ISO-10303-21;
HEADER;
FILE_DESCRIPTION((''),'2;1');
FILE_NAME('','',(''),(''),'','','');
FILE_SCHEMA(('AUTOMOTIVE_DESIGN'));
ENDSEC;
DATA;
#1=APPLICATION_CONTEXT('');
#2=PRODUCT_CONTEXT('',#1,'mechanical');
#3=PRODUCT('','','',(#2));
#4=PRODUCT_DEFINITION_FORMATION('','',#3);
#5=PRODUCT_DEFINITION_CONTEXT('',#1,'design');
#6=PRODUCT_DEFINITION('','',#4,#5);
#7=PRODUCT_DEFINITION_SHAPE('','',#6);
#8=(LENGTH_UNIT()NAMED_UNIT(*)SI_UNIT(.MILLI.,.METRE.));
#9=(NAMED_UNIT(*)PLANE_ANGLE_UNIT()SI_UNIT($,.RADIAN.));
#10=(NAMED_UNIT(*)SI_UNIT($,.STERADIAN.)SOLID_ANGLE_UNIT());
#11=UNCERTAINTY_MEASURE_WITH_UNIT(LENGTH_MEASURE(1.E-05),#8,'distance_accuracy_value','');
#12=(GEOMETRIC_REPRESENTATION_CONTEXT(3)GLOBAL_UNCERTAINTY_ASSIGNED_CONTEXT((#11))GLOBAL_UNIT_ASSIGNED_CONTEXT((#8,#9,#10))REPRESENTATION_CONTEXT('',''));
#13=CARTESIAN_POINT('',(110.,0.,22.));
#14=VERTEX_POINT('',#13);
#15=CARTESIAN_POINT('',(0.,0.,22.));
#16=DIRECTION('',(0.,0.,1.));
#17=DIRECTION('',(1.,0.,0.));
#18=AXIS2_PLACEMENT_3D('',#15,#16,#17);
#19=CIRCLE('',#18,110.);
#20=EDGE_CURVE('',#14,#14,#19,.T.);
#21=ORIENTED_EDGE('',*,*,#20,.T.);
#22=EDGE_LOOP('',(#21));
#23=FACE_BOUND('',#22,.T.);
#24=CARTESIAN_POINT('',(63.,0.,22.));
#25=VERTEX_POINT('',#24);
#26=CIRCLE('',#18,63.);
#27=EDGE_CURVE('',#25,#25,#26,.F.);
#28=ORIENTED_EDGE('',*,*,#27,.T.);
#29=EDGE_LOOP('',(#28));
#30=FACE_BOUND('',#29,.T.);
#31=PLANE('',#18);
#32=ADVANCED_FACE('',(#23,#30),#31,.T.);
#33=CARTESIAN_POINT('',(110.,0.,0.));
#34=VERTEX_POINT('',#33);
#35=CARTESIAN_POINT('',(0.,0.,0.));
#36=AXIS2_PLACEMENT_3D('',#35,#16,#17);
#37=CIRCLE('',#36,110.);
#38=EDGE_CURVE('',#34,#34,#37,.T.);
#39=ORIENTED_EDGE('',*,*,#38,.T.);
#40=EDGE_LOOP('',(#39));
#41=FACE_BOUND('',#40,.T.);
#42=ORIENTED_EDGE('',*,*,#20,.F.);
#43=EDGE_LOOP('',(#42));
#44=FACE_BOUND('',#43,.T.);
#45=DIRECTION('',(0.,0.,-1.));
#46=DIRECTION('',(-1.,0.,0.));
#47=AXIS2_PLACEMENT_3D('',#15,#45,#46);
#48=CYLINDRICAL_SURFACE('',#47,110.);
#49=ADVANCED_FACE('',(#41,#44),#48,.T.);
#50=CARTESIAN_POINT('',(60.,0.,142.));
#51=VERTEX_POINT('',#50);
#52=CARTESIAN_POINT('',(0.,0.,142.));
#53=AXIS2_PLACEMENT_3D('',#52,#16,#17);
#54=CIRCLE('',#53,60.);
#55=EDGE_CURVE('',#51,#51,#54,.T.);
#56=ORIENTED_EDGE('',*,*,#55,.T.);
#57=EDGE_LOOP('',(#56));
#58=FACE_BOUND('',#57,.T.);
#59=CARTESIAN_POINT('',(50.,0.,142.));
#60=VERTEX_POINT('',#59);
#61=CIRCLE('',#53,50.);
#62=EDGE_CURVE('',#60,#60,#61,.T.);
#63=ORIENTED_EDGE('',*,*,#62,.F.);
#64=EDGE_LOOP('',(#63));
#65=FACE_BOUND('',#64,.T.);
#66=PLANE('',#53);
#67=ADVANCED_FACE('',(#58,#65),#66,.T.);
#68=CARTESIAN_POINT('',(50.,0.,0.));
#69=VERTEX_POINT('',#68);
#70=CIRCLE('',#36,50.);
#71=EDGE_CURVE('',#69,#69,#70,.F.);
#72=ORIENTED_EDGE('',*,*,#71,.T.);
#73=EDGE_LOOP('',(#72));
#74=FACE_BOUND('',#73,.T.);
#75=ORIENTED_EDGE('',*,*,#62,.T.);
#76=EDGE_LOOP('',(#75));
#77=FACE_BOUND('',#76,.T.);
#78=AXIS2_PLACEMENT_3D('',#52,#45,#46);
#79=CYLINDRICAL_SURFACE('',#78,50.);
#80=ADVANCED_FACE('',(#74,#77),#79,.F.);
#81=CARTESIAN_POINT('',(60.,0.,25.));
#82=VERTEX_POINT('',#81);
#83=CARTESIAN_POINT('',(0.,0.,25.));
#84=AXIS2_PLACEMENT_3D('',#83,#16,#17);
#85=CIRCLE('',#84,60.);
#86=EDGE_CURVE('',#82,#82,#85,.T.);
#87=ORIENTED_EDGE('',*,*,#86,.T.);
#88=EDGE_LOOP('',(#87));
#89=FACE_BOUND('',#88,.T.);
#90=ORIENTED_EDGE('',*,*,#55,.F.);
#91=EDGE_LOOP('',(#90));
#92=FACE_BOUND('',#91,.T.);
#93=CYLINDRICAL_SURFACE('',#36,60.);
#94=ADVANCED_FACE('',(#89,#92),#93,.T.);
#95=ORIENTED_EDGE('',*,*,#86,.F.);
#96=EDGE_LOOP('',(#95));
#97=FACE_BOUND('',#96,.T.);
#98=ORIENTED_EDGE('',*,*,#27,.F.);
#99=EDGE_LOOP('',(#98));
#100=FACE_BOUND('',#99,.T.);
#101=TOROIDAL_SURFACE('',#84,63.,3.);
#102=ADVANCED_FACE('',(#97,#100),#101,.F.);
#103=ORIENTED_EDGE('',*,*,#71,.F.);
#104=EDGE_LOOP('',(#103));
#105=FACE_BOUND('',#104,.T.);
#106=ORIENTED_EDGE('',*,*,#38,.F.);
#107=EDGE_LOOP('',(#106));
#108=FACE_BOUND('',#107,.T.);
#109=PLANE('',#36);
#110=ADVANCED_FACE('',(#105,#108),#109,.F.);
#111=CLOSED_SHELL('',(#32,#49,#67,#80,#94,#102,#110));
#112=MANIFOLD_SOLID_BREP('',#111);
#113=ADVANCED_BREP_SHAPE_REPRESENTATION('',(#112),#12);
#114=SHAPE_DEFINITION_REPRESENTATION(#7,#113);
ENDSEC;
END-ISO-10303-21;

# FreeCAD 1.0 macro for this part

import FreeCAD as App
import Part
import Sketcher
Q = App.Units.Quantity


def edges_at(feature, points):
    """Names of the edges that pass closest to the given points."""
    edges = feature.Shape.Edges
    near = lambda p: min(range(len(edges)), key=lambda i: edges[i].distToShape(Part.Vertex(*p))[0])
    return sorted({f"Edge{near(p) + 1}" for p in points})

doc = App.newDocument("Part")
body = doc.addObject("PartDesign::Body", "Body")

sketch1 = body.newObject("Sketcher::SketchObject", "Sketch")
sketch1.AttachmentSupport = (doc.getObject("XY_Plane"), [""])
sketch1.MapMode = "FlatFace"
sketch1.addGeometry(Part.Circle(App.Vector(0, 0, 0), App.Vector(0, 0, 1), 110), False)
sketch1.addConstraint([
    Sketcher.Constraint("Coincident", 0, 3, -1, 1),
    Sketcher.Constraint("Diameter", 0, Q("220 mm")),
])
pad1 = body.newObject("PartDesign::Pad", "Pad")
pad1.Profile = sketch1
pad1.Length = 22

sketch2 = body.newObject("Sketcher::SketchObject", "Sketch001")
sketch2.AttachmentSupport = (doc.getObject("XY_Plane"), [""])
sketch2.MapMode = "FlatFace"
sketch2.AttachmentOffset = App.Placement(App.Vector(0, 0, 22), App.Rotation())
sketch2.addGeometry(Part.Circle(App.Vector(0, 0, 0), App.Vector(0, 0, 1), 60), False)
sketch2.addConstraint([
    Sketcher.Constraint("Coincident", 0, 3, -1, 1),
    Sketcher.Constraint("Diameter", 0, Q("120 mm")),
])
pad2 = body.newObject("PartDesign::Pad", "Pad001")
pad2.Profile = sketch2
pad2.Type = "TwoLengths"
pad2.Length = 120
pad2.Length2 = 22

sketch3 = body.newObject("Sketcher::SketchObject", "Sketch002")
sketch3.AttachmentSupport = (doc.getObject("XY_Plane"), [""])
sketch3.MapMode = "FlatFace"
sketch3.addGeometry(Part.Circle(App.Vector(0, 0, 0), App.Vector(0, 0, 1), 50), False)
sketch3.addConstraint([
    Sketcher.Constraint("Coincident", 0, 3, -1, 1),
    Sketcher.Constraint("Diameter", 0, Q("100 mm")),
])
pocket1 = body.newObject("PartDesign::Pocket", "Pocket")
pocket1.Profile = sketch3
pocket1.Type = "ThroughAll"
pocket1.Midplane = True
doc.recompute()

fillet = body.newObject("PartDesign::Fillet", "Fillet")
fillet.Base = (pocket1, edges_at(pocket1, [(-60, 0, 22)]))
fillet.Radius = 3

doc.recompute()
